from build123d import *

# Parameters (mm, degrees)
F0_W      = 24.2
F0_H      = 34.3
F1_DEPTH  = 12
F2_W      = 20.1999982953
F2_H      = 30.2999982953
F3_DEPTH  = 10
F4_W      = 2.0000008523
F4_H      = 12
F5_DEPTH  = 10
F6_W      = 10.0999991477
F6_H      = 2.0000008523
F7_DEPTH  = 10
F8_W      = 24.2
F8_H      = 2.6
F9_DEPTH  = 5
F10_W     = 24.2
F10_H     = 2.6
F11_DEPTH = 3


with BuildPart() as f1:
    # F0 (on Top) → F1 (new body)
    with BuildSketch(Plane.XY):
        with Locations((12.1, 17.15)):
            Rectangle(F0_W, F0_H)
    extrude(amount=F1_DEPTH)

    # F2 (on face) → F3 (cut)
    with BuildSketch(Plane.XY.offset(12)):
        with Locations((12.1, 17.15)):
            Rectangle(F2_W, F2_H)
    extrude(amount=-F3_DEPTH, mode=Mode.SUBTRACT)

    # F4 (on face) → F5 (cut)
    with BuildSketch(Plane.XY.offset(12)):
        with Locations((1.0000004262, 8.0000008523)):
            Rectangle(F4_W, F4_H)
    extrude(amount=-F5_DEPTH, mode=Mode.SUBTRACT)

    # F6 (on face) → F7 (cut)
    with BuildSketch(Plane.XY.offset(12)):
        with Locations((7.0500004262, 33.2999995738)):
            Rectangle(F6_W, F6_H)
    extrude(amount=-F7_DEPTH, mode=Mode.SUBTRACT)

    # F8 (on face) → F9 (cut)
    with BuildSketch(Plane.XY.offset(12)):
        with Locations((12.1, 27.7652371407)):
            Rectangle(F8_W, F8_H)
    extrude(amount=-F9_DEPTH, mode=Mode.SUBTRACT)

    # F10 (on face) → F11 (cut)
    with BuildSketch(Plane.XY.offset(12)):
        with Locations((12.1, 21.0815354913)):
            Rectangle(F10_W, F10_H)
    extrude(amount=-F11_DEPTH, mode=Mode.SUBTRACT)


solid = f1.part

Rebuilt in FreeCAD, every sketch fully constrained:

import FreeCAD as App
import Part
import Sketcher
Q = App.Units.Quantity


def add_polygon(sketch, points):
    """Adds a closed chain of lines whose ends are joined by coincident constraints."""
    first, n = sketch.GeometryCount, len(points)
    for a, b in zip(points, points[1:] + points[:1]):
        sketch.addGeometry(Part.LineSegment(App.Vector(*a, 0), App.Vector(*b, 0)), False)
    for i in range(n):
        sketch.addConstraint(Sketcher.Constraint("Coincident", first + i, 2, first + (i + 1) % n, 1))

doc = App.newDocument("Part")
params = doc.addObject("Spreadsheet::Sheet", "Params")
for row, (alias, value) in enumerate([
    ("sketch1_width", "24.2 mm"),
    ("sketch1_height", "34.3 mm"),
    ("pad1_length", "12 mm"),
    ("sketch2_width", "20.199998 mm"),
    ("sketch2_height", "30.299998 mm"),
    ("pocket1_length", "10 mm"),
    ("sketch3_width", "2.000001 mm"),
    ("sketch3_height", "12 mm"),
    ("pocket2_length", "10 mm"),
    ("sketch4_height", "2.000001 mm"),
    ("sketch4_width", "10.099999 mm"),
    ("pocket3_length", "10 mm"),
    ("sketch5_width", "24.2 mm"),
    ("sketch5_height", "2.6 mm"),
    ("pocket4_length", "5 mm"),
    ("sketch6_width", "24.2 mm"),
    ("sketch6_height", "2.6 mm"),
    ("pocket5_length", "3 mm"),
], start=1):
    params.set(f"A{row}", alias)
    params.set(f"B{row}", "=" + value)
    params.setAlias(f"B{row}", alias)

body = doc.addObject("PartDesign::Body", "Body")

sketch1 = body.newObject("Sketcher::SketchObject", "Sketch")
sketch1.AttachmentSupport = (doc.getObject("XY_Plane"), [""])
sketch1.MapMode = "FlatFace"
add_polygon(sketch1, [(0, 34), (0, 0), (24, 0), (24, 34)])
sketch1.addConstraint([
    Sketcher.Constraint("Vertical", 0),
    Sketcher.Constraint("Horizontal", 1),
    Sketcher.Constraint("Vertical", 2),
    Sketcher.Constraint("Horizontal", 3),
    Sketcher.Constraint("Coincident", 0, 2, -1, 1),
    Sketcher.Constraint("DistanceX", 1, 1, 1, 2, Q("24.2 mm")),
    Sketcher.Constraint("DistanceY", 0, 2, 0, 1, Q("34.3 mm")),
])
sketch1.setExpression("Constraints[9]", "Params.sketch1_width")
sketch1.setExpression("Constraints[10]", "Params.sketch1_height")
pad1 = body.newObject("PartDesign::Pad", "Pad")
pad1.Profile = sketch1
pad1.setExpression("Length", "Params.pad1_length")

sketch2 = body.newObject("Sketcher::SketchObject", "Sketch001")
sketch2.AttachmentSupport = (doc.getObject("XY_Plane"), [""])
sketch2.MapMode = "FlatFace"
sketch2.AttachmentOffset = App.Placement(App.Vector(0, 0, 12), App.Rotation())
add_polygon(sketch2, [(2, 32), (2, 2), (22, 2), (22, 32)])
sketch2.addConstraint([
    Sketcher.Constraint("Vertical", 0),
    Sketcher.Constraint("Horizontal", 1),
    Sketcher.Constraint("Vertical", 2),
    Sketcher.Constraint("Horizontal", 3),
    Sketcher.Constraint("DistanceX", 1, 1, 1, 2, Q("20.199998 mm")),
    Sketcher.Constraint("DistanceY", 0, 2, 0, 1, Q("30.299998 mm")),
    Sketcher.Constraint("DistanceX", -1, 1, 0, 2, Q("2.000001 mm")),
    Sketcher.Constraint("DistanceY", -1, 1, 0, 2, Q("2.000001 mm")),
])
sketch2.setExpression("Constraints[8]", "Params.sketch2_width")
sketch2.setExpression("Constraints[9]", "Params.sketch2_height")
pocket1 = body.newObject("PartDesign::Pocket", "Pocket")
pocket1.Profile = sketch2
pocket1.setExpression("Length", "Params.pocket1_length")

sketch3 = body.newObject("Sketcher::SketchObject", "Sketch002")
sketch3.AttachmentSupport = (doc.getObject("XY_Plane"), [""])
sketch3.MapMode = "FlatFace"
sketch3.AttachmentOffset = App.Placement(App.Vector(0, 0, 12), App.Rotation())
add_polygon(sketch3, [(0, 14), (0, 2), (2, 2), (2, 14)])
sketch3.addConstraint([
    Sketcher.Constraint("Vertical", 0),
    Sketcher.Constraint("Horizontal", 1),
    Sketcher.Constraint("Vertical", 2),
    Sketcher.Constraint("Horizontal", 3),
    Sketcher.Constraint("PointOnObject", 0, 2, -2),
    Sketcher.Constraint("DistanceX", 1, 1, 1, 2, Q("2.000001 mm")),
    Sketcher.Constraint("DistanceY", 0, 2, 0, 1, Q("12 mm")),
    Sketcher.Constraint("DistanceY", -1, 1, 0, 2, Q("2.000001 mm")),
])
sketch3.setExpression("Constraints[9]", "Params.sketch3_width")
sketch3.setExpression("Constraints[10]", "Params.sketch3_height")
pocket2 = body.newObject("PartDesign::Pocket", "Pocket001")
pocket2.Profile = sketch3
pocket2.setExpression("Length", "Params.pocket2_length")

sketch4 = body.newObject("Sketcher::SketchObject", "Sketch003")
sketch4.AttachmentSupport = (doc.getObject("XY_Plane"), [""])
sketch4.MapMode = "FlatFace"
sketch4.AttachmentOffset = App.Placement(App.Vector(0, 0, 12), App.Rotation())
add_polygon(sketch4, [(2, 34.3), (2, 32.3), (12.1, 32.3), (12.1, 34.3)])
sketch4.addConstraint([
    Sketcher.Constraint("Vertical", 0),
    Sketcher.Constraint("Horizontal", 1),
    Sketcher.Constraint("Vertical", 2),
    Sketcher.Constraint("Horizontal", 3),
    Sketcher.Constraint("DistanceY", 0, 2, 0, 1, Q("2.000001 mm")),
    Sketcher.Constraint("DistanceX", 1, 1, 1, 2, Q("10.099999 mm")),
    Sketcher.Constraint("DistanceX", -1, 1, 0, 2, Q("2.000001 mm")),
    Sketcher.Constraint("DistanceY", -1, 1, 0, 2, Q("32.299999 mm")),
])
sketch4.setExpression("Constraints[8]", "Params.sketch4_height")
sketch4.setExpression("Constraints[9]", "Params.sketch4_width")
pocket3 = body.newObject("PartDesign::Pocket", "Pocket002")
pocket3.Profile = sketch4
pocket3.setExpression("Length", "Params.pocket3_length")

sketch5 = body.newObject("Sketcher::SketchObject", "Sketch004")
sketch5.AttachmentSupport = (doc.getObject("XY_Plane"), [""])
sketch5.MapMode = "FlatFace"
sketch5.AttachmentOffset = App.Placement(App.Vector(0, 0, 12), App.Rotation())
add_polygon(sketch5, [(0, 29.1), (0, 26.5), (24.2, 26.5), (24.2, 29.1)])
sketch5.addConstraint([
    Sketcher.Constraint("Vertical", 0),
    Sketcher.Constraint("Horizontal", 1),
    Sketcher.Constraint("Vertical", 2),
    Sketcher.Constraint("Horizontal", 3),
    Sketcher.Constraint("PointOnObject", 0, 2, -2),
    Sketcher.Constraint("DistanceX", 1, 1, 1, 2, Q("24.2 mm")),
    Sketcher.Constraint("DistanceY", 0, 2, 0, 1, Q("2.6 mm")),
    Sketcher.Constraint("DistanceY", -1, 1, 0, 2, Q("26.465237 mm")),
])
sketch5.setExpression("Constraints[9]", "Params.sketch5_width")
sketch5.setExpression("Constraints[10]", "Params.sketch5_height")
pocket4 = body.newObject("PartDesign::Pocket", "Pocket003")
pocket4.Profile = sketch5
pocket4.setExpression("Length", "Params.pocket4_length")

sketch6 = body.newObject("Sketcher::SketchObject", "Sketch005")
sketch6.AttachmentSupport = (doc.getObject("XY_Plane"), [""])
sketch6.MapMode = "FlatFace"
sketch6.AttachmentOffset = App.Placement(App.Vector(0, 0, 12), App.Rotation())
add_polygon(sketch6, [(0, 22.4), (0, 19.8), (24.2, 19.8), (24.2, 22.4)])
sketch6.addConstraint([
    Sketcher.Constraint("Vertical", 0),
    Sketcher.Constraint("Horizontal", 1),
    Sketcher.Constraint("Vertical", 2),
    Sketcher.Constraint("Horizontal", 3),
    Sketcher.Constraint("PointOnObject", 0, 2, -2),
    Sketcher.Constraint("DistanceX", 1, 1, 1, 2, Q("24.2 mm")),
    Sketcher.Constraint("DistanceY", 0, 2, 0, 1, Q("2.6 mm")),
    Sketcher.Constraint("DistanceY", -1, 1, 0, 2, Q("19.781535 mm")),
])
sketch6.setExpression("Constraints[9]", "Params.sketch6_width")
sketch6.setExpression("Constraints[10]", "Params.sketch6_height")
pocket5 = body.newObject("PartDesign::Pocket", "Pocket004")
pocket5.Profile = sketch6
pocket5.setExpression("Length", "Params.pocket5_length")

doc.recompute()
